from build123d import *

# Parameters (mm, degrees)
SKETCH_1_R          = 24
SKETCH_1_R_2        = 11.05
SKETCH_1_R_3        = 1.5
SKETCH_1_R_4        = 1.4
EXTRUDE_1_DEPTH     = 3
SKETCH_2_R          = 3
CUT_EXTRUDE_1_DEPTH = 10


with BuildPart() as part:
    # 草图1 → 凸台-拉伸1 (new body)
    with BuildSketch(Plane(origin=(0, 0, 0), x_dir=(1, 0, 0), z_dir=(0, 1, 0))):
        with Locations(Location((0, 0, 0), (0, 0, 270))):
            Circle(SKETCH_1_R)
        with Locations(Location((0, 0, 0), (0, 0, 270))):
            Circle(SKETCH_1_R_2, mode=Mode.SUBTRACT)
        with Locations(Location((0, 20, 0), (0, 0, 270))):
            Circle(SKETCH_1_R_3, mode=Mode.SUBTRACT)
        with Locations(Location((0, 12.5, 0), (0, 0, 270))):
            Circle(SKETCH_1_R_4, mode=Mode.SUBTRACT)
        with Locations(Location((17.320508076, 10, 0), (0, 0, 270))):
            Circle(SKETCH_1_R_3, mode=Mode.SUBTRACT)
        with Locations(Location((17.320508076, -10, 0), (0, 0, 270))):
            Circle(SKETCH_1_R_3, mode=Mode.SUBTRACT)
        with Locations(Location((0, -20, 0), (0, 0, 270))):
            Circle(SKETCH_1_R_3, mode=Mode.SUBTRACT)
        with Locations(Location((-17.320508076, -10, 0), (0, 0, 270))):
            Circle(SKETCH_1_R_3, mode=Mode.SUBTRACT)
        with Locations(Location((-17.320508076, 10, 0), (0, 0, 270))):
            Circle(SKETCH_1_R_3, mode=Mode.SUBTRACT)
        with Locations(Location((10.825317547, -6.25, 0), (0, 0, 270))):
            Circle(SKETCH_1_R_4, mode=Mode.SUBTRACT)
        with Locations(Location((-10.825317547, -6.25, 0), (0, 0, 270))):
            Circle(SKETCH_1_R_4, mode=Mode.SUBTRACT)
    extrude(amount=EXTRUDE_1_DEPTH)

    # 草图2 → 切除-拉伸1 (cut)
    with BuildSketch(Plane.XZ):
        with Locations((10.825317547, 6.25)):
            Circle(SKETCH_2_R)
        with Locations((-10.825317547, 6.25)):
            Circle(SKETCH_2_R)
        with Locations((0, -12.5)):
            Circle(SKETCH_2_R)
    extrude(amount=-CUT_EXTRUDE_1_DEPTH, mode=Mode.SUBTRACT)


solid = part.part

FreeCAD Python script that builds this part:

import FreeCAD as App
import Part
import Sketcher

V = App.Vector

doc = App.newDocument("Part")
body = doc.addObject("PartDesign::Body", "Body")

# Sketch on XZ plane
sketch1 = body.newObject("Sketcher::SketchObject", "Sketch")
sketch1.AttachmentSupport = (doc.getObject("XZ_Plane"), [""])
sketch1.MapMode = "FlatFace"
sketch1.addGeometry([
    Part.Circle(V(0, 0, 0), V(0, 0, 1), 24),  # 0
    Part.Circle(V(-17.3, -10, 0), V(0, 0, 1), 1.5),  # 1
    Part.Circle(V(0, -20, 0), V(0, 0, 1), 1.5),  # 2
    Part.Circle(V(0, -12.5, 0), V(0, 0, 1), 1.4),  # 3
    Part.Circle(V(-17.3, 10, 0), V(0, 0, 1), 1.5),  # 4
    Part.Circle(V(-10.8, 6.2, 0), V(0, 0, 1), 1.4),  # 5
    Part.Circle(V(17.3, -10, 0), V(0, 0, 1), 1.5),  # 6
    Part.Circle(V(0, 0, 0), V(0, 0, 1), 11.1),  # 7
    Part.Circle(V(0, 20, 0), V(0, 0, 1), 1.5),  # 8
    Part.Circle(V(10.8, 6.2, 0), V(0, 0, 1), 1.4),  # 9
    Part.Circle(V(17.3, 10, 0), V(0, 0, 1), 1.5),  # 10
], False)
sketch1.addConstraint([
    Sketcher.Constraint("Coincident", 0, 3, -1, 1),
    Sketcher.Constraint("Coincident", 7, 3, -1, 1),
    Sketcher.Constraint("Equal", 1, 2),
    Sketcher.Constraint("Equal", 2, 4),
    Sketcher.Constraint("Equal", 3, 5),
    Sketcher.Constraint("Equal", 4, 6),
    Sketcher.Constraint("Equal", 6, 8),
    Sketcher.Constraint("Equal", 5, 9),
    Sketcher.Constraint("Equal", 8, 10),
    Sketcher.Constraint("Symmetric", 4, 3, 6, 3, -1, 1),
    Sketcher.Constraint("Symmetric", 2, 3, 8, 3, -1, 1),
    Sketcher.Constraint("Symmetric", 1, 3, 10, 3, -1, 1),
    Sketcher.Constraint("Symmetric", 1, 3, 6, 3, -2),
    Sketcher.Constraint("Symmetric", 5, 3, 9, 3, -2),
    Sketcher.Constraint("PointOnObject", 2, 3, -2),
    Sketcher.Constraint("PointOnObject", 3, 3, -2),
    Sketcher.Constraint("Diameter", 0, 48.0),
    Sketcher.Constraint("Diameter", 1, 3.0),
    Sketcher.Constraint("Diameter", 3, 2.8),
    Sketcher.Constraint("Diameter", 7, 22.1),
    Sketcher.Constraint("DistanceY", 1, 3, -1, 1, 10.0),
    Sketcher.Constraint("DistanceY", 2, 3, -1, 1, 20.0),
    Sketcher.Constraint("DistanceY", 3, 3, -1, 1, 12.5),
    Sketcher.Constraint("DistanceY", -1, 1, 5, 3, 6.25),
    Sketcher.Constraint("DistanceX", 1, 3, -1, 1, 17.320508),
    Sketcher.Constraint("DistanceX", 4, 3, 5, 3, 6.495191),
])
pad1 = body.newObject("PartDesign::Pad", "Pad")
pad1.Profile = sketch1
pad1.Length = 3
pad1.Reversed = True

# Sketch on XZ plane
sketch2 = body.newObject("Sketcher::SketchObject", "Sketch001")
sketch2.AttachmentSupport = (doc.getObject("XZ_Plane"), [""])
sketch2.MapMode = "FlatFace"
sketch2.addGeometry([
    Part.Circle(V(10.8, 6.2, 0), V(0, 0, 1), 3),
    Part.Circle(V(-10.8, 6.2, 0), V(0, 0, 1), 3),
    Part.Circle(V(0, -12.5, 0), V(0, 0, 1), 3),
], False)
sketch2.addConstraint([
    Sketcher.Constraint("Equal", 0, 1),
    Sketcher.Constraint("Equal", 1, 2),
    Sketcher.Constraint("Symmetric", 0, 3, 1, 3, -2),
    Sketcher.Constraint("PointOnObject", 2, 3, -2),
    Sketcher.Constraint("Diameter", 0, 6.0),
    Sketcher.Constraint("DistanceY", 2, 3, -1, 1, 12.5),
    Sketcher.Constraint("DistanceY", -1, 1, 0, 3, 6.25),
    Sketcher.Constraint("DistanceX", -1, 1, 0, 3, 10.825318),
])
pocket1 = body.newObject("PartDesign::Pocket", "Pocket")
pocket1.Profile = sketch2
pocket1.Length = 10

doc.recompute()
